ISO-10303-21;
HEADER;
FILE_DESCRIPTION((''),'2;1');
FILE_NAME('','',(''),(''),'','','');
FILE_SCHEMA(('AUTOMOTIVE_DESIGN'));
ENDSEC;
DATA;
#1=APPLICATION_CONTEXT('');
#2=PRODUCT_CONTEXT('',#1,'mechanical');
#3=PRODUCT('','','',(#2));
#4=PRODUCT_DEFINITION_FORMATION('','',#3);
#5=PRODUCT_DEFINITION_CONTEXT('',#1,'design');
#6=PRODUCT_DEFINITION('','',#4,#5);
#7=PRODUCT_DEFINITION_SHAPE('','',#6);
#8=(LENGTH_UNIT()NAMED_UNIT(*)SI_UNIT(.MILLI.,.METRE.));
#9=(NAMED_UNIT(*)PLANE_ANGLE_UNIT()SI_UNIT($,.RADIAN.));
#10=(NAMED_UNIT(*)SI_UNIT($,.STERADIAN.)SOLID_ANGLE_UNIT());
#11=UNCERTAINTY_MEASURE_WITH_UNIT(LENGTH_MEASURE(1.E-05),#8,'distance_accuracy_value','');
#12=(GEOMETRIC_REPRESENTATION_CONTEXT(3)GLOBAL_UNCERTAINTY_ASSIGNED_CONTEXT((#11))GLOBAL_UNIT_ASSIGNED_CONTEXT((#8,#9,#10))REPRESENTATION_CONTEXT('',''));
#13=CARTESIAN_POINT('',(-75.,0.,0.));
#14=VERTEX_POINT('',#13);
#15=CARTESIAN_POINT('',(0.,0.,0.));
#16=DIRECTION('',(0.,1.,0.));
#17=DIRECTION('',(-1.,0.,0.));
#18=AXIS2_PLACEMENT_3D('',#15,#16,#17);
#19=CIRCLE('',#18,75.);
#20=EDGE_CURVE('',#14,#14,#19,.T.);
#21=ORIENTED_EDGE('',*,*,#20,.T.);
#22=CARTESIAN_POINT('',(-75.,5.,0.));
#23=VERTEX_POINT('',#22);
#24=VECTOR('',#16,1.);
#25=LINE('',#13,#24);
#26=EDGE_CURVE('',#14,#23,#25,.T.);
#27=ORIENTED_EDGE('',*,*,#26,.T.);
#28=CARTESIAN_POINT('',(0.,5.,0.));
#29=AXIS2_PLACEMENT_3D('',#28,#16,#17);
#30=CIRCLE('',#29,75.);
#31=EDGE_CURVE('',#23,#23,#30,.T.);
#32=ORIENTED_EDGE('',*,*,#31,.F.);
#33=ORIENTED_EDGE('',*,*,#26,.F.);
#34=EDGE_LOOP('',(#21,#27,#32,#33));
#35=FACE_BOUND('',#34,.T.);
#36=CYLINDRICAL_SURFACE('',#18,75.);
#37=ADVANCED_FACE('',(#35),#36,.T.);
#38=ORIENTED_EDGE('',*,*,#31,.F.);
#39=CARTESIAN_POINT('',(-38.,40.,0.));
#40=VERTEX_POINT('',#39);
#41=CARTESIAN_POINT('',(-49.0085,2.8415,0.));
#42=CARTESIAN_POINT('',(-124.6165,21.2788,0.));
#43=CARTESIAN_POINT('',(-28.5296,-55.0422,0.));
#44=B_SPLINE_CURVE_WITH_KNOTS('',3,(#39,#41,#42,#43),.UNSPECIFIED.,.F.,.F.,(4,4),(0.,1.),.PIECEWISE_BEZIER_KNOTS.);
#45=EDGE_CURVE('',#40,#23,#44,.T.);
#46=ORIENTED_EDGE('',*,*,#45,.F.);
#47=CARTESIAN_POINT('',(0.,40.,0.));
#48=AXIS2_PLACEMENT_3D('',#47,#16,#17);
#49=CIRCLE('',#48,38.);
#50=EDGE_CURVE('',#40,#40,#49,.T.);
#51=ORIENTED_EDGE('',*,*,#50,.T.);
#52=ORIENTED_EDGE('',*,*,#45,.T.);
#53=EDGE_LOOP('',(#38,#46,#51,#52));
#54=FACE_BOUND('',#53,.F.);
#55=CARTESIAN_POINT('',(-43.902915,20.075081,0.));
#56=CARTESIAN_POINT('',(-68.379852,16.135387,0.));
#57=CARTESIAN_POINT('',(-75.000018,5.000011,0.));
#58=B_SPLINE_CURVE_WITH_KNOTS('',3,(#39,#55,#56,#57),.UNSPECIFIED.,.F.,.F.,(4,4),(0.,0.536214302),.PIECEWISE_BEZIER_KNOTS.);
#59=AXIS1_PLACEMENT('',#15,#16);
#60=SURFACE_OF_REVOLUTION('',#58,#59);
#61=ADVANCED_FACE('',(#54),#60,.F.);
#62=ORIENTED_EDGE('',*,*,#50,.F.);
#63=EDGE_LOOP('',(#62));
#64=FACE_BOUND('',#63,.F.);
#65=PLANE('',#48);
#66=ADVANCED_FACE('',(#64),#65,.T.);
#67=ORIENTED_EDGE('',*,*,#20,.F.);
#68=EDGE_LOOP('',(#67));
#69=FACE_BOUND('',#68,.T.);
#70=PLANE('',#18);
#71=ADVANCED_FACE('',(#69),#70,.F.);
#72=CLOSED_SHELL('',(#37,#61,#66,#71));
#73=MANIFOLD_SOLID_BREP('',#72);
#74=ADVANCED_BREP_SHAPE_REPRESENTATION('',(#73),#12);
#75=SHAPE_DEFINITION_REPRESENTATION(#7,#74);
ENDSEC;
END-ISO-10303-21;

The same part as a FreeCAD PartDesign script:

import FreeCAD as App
import Part
import Sketcher
from FreeCAD import Vector

doc = App.newDocument("Part")
body = doc.addObject("PartDesign::Body", "Body")

# Sketch on XY plane
sketch1 = body.newObject("Sketcher::SketchObject", "Sketch")
sketch1.AttachmentSupport = (doc.getObject("XY_Plane"), [""])
sketch1.MapMode = "FlatFace"
sketch1.addGeometry([
    Part.LineSegment(Vector(-75, 0, 0), Vector(0, 0, 0)),  # 0
    Part.LineSegment(Vector(0, 0, 0), Vector(0, 40, 0)),  # 1
    Part.LineSegment(Vector(0, 40, 0), Vector(-38, 40, 0)),  # 2
    Part.BSplineCurve([Vector(-38, 40, 0), Vector(-43.902915, 20.075081, 0), Vector(-68.379852, 16.135387, 0), Vector(-75.000018, 5.000011, 0)], [4, 4], [0, 0.536214302], False, 3, [1, 1, 1, 1], False),  # 3
    Part.LineSegment(Vector(-75, 5, 0), Vector(-75, 0, 0)),  # 4
], False)
sketch1.addConstraint([
    Sketcher.Constraint("Block", 3),
    Sketcher.Constraint("Coincident", 0, 2, 1, 1),
    Sketcher.Constraint("Coincident", 1, 2, 2, 1),
    Sketcher.Constraint("Coincident", 2, 2, 3, 1),
    Sketcher.Constraint("Coincident", 3, 2, 4, 1),
    Sketcher.Constraint("Coincident", 4, 2, 0, 1),
    Sketcher.Constraint("Horizontal", 0),
    Sketcher.Constraint("Vertical", 1),
    Sketcher.Constraint("Horizontal", 2),
    Sketcher.Constraint("Vertical", 4),
    Sketcher.Constraint("Coincident", 0, 2, -1, 1),
])
revolution = body.newObject("PartDesign::Revolution", "Revolution")
revolution.Profile = sketch1
revolution.ReferenceAxis = (sketch1, ["V_Axis"])
revolution.Angle = 360

doc.recompute()
